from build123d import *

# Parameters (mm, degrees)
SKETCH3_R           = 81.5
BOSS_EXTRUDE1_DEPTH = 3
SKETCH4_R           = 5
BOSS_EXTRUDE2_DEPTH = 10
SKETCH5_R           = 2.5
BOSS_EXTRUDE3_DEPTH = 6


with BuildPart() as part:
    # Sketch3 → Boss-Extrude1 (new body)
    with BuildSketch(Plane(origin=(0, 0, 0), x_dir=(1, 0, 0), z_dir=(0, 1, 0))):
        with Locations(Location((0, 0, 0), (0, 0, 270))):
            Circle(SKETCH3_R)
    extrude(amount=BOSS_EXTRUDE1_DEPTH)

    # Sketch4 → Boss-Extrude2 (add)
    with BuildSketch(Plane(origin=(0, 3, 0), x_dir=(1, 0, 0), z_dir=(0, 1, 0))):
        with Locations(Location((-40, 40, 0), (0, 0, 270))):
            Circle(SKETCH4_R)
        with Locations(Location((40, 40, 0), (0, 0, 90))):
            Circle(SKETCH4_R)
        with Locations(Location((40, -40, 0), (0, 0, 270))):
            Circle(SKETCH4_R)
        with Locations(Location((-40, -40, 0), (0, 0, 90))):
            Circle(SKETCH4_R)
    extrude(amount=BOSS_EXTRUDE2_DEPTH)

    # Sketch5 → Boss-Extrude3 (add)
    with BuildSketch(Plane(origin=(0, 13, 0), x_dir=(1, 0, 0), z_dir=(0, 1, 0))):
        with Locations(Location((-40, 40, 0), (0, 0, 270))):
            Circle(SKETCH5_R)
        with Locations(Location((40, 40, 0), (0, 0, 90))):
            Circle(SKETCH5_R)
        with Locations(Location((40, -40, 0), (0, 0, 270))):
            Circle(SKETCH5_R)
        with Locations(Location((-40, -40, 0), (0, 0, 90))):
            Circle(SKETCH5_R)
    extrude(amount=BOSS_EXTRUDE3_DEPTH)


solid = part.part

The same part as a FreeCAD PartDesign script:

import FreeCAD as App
import Part
import Sketcher

V = App.Vector

doc = App.newDocument("Part")
body = doc.addObject("PartDesign::Body", "Body")

sketch1 = doc.addObject("Sketcher::SketchObject", "Sketch")
body.addObject(sketch1)
sketch1.AttachmentSupport = (doc.XZ_Plane, [""])
sketch1.MapMode = "FlatFace"
sketch1.addGeometry(Part.Circle(V(0, 0, 0), V(0, 0, 1), 82), False)
sketch1.addConstraint([
    Sketcher.Constraint("Coincident", 0, 3, -1, 1),
    Sketcher.Constraint("Diameter", 0, 163.0),
])
pad1 = doc.addObject("PartDesign::Pad", "Pad")
body.addObject(pad1)
pad1.Profile = sketch1
pad1.Length = 3
pad1.Reversed = True

sketch2 = doc.addObject("Sketcher::SketchObject", "Sketch001")
body.addObject(sketch2)
sketch2.AttachmentSupport = (doc.XZ_Plane, [""])
sketch2.MapMode = "FlatFace"
sketch2.AttachmentOffset = App.Placement(V(0, 0, -3), App.Rotation())
sketch2.addGeometry([
    Part.Circle(V(-40, -40, 0), V(0, 0, 1), 5),
    Part.Circle(V(40, -40, 0), V(0, 0, 1), 5),
    Part.Circle(V(40, 40, 0), V(0, 0, 1), 5),
    Part.Circle(V(-40, 40, 0), V(0, 0, 1), 5),
], False)
sketch2.addConstraint([
    Sketcher.Constraint("Equal", 0, 1),
    Sketcher.Constraint("Equal", 1, 2),
    Sketcher.Constraint("Equal", 2, 3),
    Sketcher.Constraint("Symmetric", 0, 3, 2, 3, -1, 1),
    Sketcher.Constraint("Symmetric", 1, 3, 3, 3, -1, 1),
    Sketcher.Constraint("Symmetric", 0, 3, 1, 3, -2),
    Sketcher.Constraint("Diameter", 0, 10.0),
    Sketcher.Constraint("DistanceX", 0, 3, -1, 1, 40.0),
    Sketcher.Constraint("DistanceY", 0, 3, -1, 1, 40.0),
])
pad2 = doc.addObject("PartDesign::Pad", "Pad001")
body.addObject(pad2)
pad2.Profile = sketch2
pad2.Length = 10
pad2.Reversed = True

sketch3 = doc.addObject("Sketcher::SketchObject", "Sketch002")
body.addObject(sketch3)
sketch3.AttachmentSupport = (doc.XZ_Plane, [""])
sketch3.MapMode = "FlatFace"
sketch3.AttachmentOffset = App.Placement(V(0, 0, -13), App.Rotation())
sketch3.addGeometry([
    Part.Circle(V(-40, -40, 0), V(0, 0, 1), 2.5),
    Part.Circle(V(40, -40, 0), V(0, 0, 1), 2.5),
    Part.Circle(V(40, 40, 0), V(0, 0, 1), 2.5),
    Part.Circle(V(-40, 40, 0), V(0, 0, 1), 2.5),
], False)
sketch3.addConstraint([
    Sketcher.Constraint("Equal", 0, 1),
    Sketcher.Constraint("Equal", 1, 2),
    Sketcher.Constraint("Equal", 2, 3),
    Sketcher.Constraint("Symmetric", 0, 3, 2, 3, -1, 1),
    Sketcher.Constraint("Symmetric", 1, 3, 3, 3, -1, 1),
    Sketcher.Constraint("Symmetric", 0, 3, 1, 3, -2),
    Sketcher.Constraint("Diameter", 0, 5.0),
    Sketcher.Constraint("DistanceX", 0, 3, -1, 1, 40.0),
    Sketcher.Constraint("DistanceY", 0, 3, -1, 1, 40.0),
])
pad3 = doc.addObject("PartDesign::Pad", "Pad002")
body.addObject(pad3)
pad3.Profile = sketch3
pad3.Length = 6
pad3.Reversed = True

doc.recompute()
